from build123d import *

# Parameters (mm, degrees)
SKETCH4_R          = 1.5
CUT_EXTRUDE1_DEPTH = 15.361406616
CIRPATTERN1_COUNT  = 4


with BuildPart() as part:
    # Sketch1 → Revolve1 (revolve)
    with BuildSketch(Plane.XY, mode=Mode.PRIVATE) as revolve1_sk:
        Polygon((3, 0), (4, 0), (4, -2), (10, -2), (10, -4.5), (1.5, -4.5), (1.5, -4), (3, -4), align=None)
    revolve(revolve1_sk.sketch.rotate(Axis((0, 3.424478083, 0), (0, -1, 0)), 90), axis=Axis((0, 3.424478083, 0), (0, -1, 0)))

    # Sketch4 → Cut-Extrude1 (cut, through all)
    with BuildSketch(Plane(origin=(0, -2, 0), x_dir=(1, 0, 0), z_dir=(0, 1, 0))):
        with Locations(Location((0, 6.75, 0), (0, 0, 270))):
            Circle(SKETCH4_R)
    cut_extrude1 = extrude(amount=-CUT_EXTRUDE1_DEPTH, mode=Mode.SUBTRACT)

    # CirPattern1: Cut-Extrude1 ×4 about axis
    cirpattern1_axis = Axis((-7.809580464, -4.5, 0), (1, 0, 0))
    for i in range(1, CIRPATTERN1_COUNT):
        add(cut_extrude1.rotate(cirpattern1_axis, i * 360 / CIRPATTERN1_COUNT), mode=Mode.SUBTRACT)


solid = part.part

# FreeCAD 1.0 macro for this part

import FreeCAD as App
import Part
import Sketcher
from FreeCAD import Vector

doc = App.newDocument("Part")
body = doc.addObject("PartDesign::Body", "Body")

# Sketch on XY plane
sketch1 = body.newObject("Sketcher::SketchObject", "Sketch")
sketch1.AttachmentSupport = (doc.getObject("XY_Plane"), [""])
sketch1.MapMode = "FlatFace"
sketch1.addGeometry(Part.LineSegment(Vector(4, 0, 0), Vector(3, 0, 0)), False)
sketch1.addGeometry(Part.LineSegment(Vector(3, 0, 0), Vector(3, -4, 0)), False)
sketch1.addGeometry(Part.LineSegment(Vector(3, -4, 0), Vector(1.5, -4, 0)), False)
sketch1.addGeometry(Part.LineSegment(Vector(1.5, -4, 0), Vector(1.5, -4.5, 0)), False)
sketch1.addGeometry(Part.LineSegment(Vector(1.5, -4.5, 0), Vector(10, -4.5, 0)), False)
sketch1.addGeometry(Part.LineSegment(Vector(10, -4.5, 0), Vector(10, -2, 0)), False)
sketch1.addGeometry(Part.LineSegment(Vector(10, -2, 0), Vector(4, -2, 0)), False)
sketch1.addGeometry(Part.LineSegment(Vector(4, -2, 0), Vector(4, 0, 0)), False)
sketch1.addConstraint(Sketcher.Constraint("Coincident", 0, 2, 1, 1))
sketch1.addConstraint(Sketcher.Constraint("Coincident", 1, 2, 2, 1))
sketch1.addConstraint(Sketcher.Constraint("Coincident", 2, 2, 3, 1))
sketch1.addConstraint(Sketcher.Constraint("Coincident", 3, 2, 4, 1))
sketch1.addConstraint(Sketcher.Constraint("Coincident", 4, 2, 5, 1))
sketch1.addConstraint(Sketcher.Constraint("Coincident", 5, 2, 6, 1))
sketch1.addConstraint(Sketcher.Constraint("Coincident", 6, 2, 7, 1))
sketch1.addConstraint(Sketcher.Constraint("Coincident", 7, 2, 0, 1))
sketch1.addConstraint(Sketcher.Constraint("Horizontal", 0))
sketch1.addConstraint(Sketcher.Constraint("Vertical", 1))
sketch1.addConstraint(Sketcher.Constraint("Horizontal", 2))
sketch1.addConstraint(Sketcher.Constraint("Vertical", 3))
sketch1.addConstraint(Sketcher.Constraint("Horizontal", 4))
sketch1.addConstraint(Sketcher.Constraint("Vertical", 5))
sketch1.addConstraint(Sketcher.Constraint("Horizontal", 6))
sketch1.addConstraint(Sketcher.Constraint("Vertical", 7))
sketch1.addConstraint(Sketcher.Constraint("PointOnObject", 0, 2, -1))
sketch1.addConstraint(Sketcher.Constraint("DistanceX", 0, 2, 0, 1, 1.0))
sketch1.addConstraint(Sketcher.Constraint("DistanceX", 6, 2, 6, 1, 6.0))
sketch1.addConstraint(Sketcher.Constraint("DistanceY", 1, 2, 1, 1, 4.0))
sketch1.addConstraint(Sketcher.Constraint("DistanceY", 7, 1, 7, 2, 2.0))
sketch1.addConstraint(Sketcher.Constraint("DistanceX", 2, 2, 2, 1, 1.5))
sketch1.addConstraint(Sketcher.Constraint("DistanceY", 3, 2, 3, 1, 0.5))
sketch1.addConstraint(Sketcher.Constraint("DistanceX", -1, 1, 0, 2, 3.0))
revolution = body.newObject("PartDesign::Revolution", "Revolution")
revolution.Profile = sketch1
revolution.ReferenceAxis = (sketch1, ["V_Axis"])
revolution.Angle = 360

# Sketch on XZ plane
sketch2 = body.newObject("Sketcher::SketchObject", "Sketch001")
sketch2.AttachmentSupport = (doc.getObject("XZ_Plane"), [""])
sketch2.MapMode = "FlatFace"
sketch2.AttachmentOffset = App.Placement(Vector(0, 0, 2), App.Rotation())
sketch2.addGeometry(Part.Circle(Vector(0, -6.75, 0), Vector(0, 0, 1), 1.5), False)
sketch2.addConstraint(Sketcher.Constraint("PointOnObject", 0, 3, -2))
sketch2.addConstraint(Sketcher.Constraint("Diameter", 0, 3.0))
sketch2.addConstraint(Sketcher.Constraint("DistanceY", 0, 3, -1, 1, 6.75))
pocket1 = body.newObject("PartDesign::Pocket", "Pocket")
pocket1.Profile = sketch2
pocket1.Type = "ThroughAll"
pocket1.Reversed = True
doc.recompute()

datumline = body.newObject("PartDesign::Line", "DatumLine")
datumline.Placement = App.Placement(Vector(0, -4.5, 0), App.Rotation(Vector(0, 0, 1), Vector(1, 0, 0)))
polarpattern = body.newObject("PartDesign::PolarPattern", "PolarPattern")
polarpattern.Originals = [pocket1]
polarpattern.Axis = (datumline, [""])
polarpattern.Angle = 360
polarpattern.Occurrences = 4
body.Tip = polarpattern

doc.recompute()
